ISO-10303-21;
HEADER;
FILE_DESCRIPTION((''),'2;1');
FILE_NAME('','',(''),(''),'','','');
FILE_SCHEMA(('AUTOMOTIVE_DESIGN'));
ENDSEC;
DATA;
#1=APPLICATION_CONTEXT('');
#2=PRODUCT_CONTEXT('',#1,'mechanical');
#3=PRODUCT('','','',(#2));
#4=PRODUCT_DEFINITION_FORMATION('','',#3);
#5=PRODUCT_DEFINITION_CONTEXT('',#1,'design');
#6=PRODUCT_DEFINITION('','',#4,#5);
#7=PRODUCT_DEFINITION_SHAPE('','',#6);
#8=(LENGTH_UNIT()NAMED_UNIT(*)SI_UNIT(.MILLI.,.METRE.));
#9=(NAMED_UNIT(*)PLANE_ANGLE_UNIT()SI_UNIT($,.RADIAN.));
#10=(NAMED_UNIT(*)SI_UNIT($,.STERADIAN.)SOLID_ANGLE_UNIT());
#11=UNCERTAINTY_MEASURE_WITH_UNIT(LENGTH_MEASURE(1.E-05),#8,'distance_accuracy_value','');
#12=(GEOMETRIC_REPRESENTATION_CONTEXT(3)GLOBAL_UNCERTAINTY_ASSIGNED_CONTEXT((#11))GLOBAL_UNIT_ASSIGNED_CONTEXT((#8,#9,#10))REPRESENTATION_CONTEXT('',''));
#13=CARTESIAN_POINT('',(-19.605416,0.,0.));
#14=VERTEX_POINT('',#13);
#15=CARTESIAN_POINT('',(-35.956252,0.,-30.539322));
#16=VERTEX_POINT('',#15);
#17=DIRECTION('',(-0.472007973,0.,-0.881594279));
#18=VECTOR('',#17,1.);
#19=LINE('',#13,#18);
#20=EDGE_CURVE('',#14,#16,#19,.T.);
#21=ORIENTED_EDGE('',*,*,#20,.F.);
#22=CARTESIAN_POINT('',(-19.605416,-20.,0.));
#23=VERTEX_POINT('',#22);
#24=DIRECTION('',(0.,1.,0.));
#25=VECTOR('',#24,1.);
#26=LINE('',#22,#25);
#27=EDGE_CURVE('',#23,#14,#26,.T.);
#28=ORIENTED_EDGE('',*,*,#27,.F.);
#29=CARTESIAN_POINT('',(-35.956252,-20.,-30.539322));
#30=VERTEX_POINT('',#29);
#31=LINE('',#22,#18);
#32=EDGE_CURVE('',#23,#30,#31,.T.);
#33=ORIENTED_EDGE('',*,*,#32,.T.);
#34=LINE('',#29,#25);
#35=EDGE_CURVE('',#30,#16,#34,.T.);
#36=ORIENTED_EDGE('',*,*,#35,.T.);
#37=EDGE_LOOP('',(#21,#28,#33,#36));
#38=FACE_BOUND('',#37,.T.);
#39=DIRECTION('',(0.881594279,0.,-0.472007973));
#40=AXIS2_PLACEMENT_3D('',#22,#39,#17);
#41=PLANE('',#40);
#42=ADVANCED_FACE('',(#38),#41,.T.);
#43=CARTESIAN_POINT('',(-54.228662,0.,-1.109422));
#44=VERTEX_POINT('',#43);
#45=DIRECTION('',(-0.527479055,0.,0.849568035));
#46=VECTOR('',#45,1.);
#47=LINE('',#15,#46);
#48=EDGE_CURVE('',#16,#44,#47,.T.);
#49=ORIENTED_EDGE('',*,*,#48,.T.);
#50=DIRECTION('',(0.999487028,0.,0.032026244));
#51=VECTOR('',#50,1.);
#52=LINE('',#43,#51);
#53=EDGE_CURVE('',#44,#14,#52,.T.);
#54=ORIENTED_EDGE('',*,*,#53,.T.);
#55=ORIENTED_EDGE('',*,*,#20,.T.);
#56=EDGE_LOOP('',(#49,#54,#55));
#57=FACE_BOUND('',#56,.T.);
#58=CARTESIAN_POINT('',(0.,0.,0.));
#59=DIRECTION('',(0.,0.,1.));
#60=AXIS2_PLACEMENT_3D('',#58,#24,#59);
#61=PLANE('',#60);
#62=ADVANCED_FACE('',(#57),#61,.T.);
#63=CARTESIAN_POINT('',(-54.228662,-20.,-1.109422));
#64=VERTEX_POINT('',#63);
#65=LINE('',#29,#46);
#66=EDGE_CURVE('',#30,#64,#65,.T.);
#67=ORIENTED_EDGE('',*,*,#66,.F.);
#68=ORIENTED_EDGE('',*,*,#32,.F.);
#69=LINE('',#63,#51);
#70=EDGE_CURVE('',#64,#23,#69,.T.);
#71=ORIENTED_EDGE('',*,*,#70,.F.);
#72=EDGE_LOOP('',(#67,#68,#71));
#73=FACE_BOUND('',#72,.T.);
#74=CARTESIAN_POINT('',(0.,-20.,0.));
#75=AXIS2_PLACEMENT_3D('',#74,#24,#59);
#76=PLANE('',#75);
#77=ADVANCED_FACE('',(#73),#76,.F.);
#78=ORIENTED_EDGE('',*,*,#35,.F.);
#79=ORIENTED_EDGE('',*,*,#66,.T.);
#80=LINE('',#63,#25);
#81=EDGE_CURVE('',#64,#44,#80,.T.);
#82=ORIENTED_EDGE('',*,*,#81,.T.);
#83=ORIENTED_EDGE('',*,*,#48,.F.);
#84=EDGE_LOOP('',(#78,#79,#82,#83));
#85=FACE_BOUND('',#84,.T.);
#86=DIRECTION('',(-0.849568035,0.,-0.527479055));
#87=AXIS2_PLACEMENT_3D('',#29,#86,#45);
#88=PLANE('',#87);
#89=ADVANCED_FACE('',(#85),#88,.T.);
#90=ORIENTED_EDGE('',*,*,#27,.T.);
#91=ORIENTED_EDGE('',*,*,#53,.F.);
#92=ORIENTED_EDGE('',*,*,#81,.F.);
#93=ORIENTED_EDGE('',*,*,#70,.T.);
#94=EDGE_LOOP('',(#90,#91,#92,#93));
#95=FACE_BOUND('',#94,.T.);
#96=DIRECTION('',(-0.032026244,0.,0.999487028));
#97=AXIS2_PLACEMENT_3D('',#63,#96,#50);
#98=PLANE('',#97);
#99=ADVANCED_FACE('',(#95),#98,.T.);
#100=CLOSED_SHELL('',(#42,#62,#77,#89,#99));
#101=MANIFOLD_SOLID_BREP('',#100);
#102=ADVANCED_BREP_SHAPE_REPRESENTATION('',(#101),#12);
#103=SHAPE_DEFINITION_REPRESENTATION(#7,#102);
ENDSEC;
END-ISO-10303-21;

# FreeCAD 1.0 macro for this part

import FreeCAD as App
import Part
import Sketcher

V = App.Vector


def add_polygon(sketch, points):
    """Adds a closed chain of lines whose ends are joined by coincident constraints."""
    first, n = sketch.GeometryCount, len(points)
    for a, b in zip(points, points[1:] + points[:1]):
        sketch.addGeometry(Part.LineSegment(App.Vector(*a, 0), App.Vector(*b, 0)), False)
    for i in range(n):
        sketch.addConstraint(Sketcher.Constraint("Coincident", first + i, 2, first + (i + 1) % n, 1))

doc = App.newDocument("Part")
body = doc.addObject("PartDesign::Body", "Body")

sketch1 = body.newObject("Sketcher::SketchObject", "Sketch")
sketch1.AttachmentSupport = (doc.getObject("XZ_Plane"), [""])
sketch1.MapMode = "FlatFace"
add_polygon(sketch1, [(-20, 0), (-36, -31), (-54, -1)])
sketch1.addConstraint([
    Sketcher.Constraint("PointOnObject", 2, 2, -1),
    Sketcher.Constraint("Equal", 0, 1),
    Sketcher.Constraint("Equal", 1, 2),
    Sketcher.Constraint("DistanceY", 0, 2, 1, 2, 29.4299),
    Sketcher.Constraint("DistanceY", 0, 2, -1, 1, 30.539322),
    Sketcher.Constraint("DistanceX", 0, 2, -1, 1, 35.956252),
])
pad1 = body.newObject("PartDesign::Pad", "Pad")
pad1.Profile = sketch1
pad1.Length = 20

doc.recompute()
